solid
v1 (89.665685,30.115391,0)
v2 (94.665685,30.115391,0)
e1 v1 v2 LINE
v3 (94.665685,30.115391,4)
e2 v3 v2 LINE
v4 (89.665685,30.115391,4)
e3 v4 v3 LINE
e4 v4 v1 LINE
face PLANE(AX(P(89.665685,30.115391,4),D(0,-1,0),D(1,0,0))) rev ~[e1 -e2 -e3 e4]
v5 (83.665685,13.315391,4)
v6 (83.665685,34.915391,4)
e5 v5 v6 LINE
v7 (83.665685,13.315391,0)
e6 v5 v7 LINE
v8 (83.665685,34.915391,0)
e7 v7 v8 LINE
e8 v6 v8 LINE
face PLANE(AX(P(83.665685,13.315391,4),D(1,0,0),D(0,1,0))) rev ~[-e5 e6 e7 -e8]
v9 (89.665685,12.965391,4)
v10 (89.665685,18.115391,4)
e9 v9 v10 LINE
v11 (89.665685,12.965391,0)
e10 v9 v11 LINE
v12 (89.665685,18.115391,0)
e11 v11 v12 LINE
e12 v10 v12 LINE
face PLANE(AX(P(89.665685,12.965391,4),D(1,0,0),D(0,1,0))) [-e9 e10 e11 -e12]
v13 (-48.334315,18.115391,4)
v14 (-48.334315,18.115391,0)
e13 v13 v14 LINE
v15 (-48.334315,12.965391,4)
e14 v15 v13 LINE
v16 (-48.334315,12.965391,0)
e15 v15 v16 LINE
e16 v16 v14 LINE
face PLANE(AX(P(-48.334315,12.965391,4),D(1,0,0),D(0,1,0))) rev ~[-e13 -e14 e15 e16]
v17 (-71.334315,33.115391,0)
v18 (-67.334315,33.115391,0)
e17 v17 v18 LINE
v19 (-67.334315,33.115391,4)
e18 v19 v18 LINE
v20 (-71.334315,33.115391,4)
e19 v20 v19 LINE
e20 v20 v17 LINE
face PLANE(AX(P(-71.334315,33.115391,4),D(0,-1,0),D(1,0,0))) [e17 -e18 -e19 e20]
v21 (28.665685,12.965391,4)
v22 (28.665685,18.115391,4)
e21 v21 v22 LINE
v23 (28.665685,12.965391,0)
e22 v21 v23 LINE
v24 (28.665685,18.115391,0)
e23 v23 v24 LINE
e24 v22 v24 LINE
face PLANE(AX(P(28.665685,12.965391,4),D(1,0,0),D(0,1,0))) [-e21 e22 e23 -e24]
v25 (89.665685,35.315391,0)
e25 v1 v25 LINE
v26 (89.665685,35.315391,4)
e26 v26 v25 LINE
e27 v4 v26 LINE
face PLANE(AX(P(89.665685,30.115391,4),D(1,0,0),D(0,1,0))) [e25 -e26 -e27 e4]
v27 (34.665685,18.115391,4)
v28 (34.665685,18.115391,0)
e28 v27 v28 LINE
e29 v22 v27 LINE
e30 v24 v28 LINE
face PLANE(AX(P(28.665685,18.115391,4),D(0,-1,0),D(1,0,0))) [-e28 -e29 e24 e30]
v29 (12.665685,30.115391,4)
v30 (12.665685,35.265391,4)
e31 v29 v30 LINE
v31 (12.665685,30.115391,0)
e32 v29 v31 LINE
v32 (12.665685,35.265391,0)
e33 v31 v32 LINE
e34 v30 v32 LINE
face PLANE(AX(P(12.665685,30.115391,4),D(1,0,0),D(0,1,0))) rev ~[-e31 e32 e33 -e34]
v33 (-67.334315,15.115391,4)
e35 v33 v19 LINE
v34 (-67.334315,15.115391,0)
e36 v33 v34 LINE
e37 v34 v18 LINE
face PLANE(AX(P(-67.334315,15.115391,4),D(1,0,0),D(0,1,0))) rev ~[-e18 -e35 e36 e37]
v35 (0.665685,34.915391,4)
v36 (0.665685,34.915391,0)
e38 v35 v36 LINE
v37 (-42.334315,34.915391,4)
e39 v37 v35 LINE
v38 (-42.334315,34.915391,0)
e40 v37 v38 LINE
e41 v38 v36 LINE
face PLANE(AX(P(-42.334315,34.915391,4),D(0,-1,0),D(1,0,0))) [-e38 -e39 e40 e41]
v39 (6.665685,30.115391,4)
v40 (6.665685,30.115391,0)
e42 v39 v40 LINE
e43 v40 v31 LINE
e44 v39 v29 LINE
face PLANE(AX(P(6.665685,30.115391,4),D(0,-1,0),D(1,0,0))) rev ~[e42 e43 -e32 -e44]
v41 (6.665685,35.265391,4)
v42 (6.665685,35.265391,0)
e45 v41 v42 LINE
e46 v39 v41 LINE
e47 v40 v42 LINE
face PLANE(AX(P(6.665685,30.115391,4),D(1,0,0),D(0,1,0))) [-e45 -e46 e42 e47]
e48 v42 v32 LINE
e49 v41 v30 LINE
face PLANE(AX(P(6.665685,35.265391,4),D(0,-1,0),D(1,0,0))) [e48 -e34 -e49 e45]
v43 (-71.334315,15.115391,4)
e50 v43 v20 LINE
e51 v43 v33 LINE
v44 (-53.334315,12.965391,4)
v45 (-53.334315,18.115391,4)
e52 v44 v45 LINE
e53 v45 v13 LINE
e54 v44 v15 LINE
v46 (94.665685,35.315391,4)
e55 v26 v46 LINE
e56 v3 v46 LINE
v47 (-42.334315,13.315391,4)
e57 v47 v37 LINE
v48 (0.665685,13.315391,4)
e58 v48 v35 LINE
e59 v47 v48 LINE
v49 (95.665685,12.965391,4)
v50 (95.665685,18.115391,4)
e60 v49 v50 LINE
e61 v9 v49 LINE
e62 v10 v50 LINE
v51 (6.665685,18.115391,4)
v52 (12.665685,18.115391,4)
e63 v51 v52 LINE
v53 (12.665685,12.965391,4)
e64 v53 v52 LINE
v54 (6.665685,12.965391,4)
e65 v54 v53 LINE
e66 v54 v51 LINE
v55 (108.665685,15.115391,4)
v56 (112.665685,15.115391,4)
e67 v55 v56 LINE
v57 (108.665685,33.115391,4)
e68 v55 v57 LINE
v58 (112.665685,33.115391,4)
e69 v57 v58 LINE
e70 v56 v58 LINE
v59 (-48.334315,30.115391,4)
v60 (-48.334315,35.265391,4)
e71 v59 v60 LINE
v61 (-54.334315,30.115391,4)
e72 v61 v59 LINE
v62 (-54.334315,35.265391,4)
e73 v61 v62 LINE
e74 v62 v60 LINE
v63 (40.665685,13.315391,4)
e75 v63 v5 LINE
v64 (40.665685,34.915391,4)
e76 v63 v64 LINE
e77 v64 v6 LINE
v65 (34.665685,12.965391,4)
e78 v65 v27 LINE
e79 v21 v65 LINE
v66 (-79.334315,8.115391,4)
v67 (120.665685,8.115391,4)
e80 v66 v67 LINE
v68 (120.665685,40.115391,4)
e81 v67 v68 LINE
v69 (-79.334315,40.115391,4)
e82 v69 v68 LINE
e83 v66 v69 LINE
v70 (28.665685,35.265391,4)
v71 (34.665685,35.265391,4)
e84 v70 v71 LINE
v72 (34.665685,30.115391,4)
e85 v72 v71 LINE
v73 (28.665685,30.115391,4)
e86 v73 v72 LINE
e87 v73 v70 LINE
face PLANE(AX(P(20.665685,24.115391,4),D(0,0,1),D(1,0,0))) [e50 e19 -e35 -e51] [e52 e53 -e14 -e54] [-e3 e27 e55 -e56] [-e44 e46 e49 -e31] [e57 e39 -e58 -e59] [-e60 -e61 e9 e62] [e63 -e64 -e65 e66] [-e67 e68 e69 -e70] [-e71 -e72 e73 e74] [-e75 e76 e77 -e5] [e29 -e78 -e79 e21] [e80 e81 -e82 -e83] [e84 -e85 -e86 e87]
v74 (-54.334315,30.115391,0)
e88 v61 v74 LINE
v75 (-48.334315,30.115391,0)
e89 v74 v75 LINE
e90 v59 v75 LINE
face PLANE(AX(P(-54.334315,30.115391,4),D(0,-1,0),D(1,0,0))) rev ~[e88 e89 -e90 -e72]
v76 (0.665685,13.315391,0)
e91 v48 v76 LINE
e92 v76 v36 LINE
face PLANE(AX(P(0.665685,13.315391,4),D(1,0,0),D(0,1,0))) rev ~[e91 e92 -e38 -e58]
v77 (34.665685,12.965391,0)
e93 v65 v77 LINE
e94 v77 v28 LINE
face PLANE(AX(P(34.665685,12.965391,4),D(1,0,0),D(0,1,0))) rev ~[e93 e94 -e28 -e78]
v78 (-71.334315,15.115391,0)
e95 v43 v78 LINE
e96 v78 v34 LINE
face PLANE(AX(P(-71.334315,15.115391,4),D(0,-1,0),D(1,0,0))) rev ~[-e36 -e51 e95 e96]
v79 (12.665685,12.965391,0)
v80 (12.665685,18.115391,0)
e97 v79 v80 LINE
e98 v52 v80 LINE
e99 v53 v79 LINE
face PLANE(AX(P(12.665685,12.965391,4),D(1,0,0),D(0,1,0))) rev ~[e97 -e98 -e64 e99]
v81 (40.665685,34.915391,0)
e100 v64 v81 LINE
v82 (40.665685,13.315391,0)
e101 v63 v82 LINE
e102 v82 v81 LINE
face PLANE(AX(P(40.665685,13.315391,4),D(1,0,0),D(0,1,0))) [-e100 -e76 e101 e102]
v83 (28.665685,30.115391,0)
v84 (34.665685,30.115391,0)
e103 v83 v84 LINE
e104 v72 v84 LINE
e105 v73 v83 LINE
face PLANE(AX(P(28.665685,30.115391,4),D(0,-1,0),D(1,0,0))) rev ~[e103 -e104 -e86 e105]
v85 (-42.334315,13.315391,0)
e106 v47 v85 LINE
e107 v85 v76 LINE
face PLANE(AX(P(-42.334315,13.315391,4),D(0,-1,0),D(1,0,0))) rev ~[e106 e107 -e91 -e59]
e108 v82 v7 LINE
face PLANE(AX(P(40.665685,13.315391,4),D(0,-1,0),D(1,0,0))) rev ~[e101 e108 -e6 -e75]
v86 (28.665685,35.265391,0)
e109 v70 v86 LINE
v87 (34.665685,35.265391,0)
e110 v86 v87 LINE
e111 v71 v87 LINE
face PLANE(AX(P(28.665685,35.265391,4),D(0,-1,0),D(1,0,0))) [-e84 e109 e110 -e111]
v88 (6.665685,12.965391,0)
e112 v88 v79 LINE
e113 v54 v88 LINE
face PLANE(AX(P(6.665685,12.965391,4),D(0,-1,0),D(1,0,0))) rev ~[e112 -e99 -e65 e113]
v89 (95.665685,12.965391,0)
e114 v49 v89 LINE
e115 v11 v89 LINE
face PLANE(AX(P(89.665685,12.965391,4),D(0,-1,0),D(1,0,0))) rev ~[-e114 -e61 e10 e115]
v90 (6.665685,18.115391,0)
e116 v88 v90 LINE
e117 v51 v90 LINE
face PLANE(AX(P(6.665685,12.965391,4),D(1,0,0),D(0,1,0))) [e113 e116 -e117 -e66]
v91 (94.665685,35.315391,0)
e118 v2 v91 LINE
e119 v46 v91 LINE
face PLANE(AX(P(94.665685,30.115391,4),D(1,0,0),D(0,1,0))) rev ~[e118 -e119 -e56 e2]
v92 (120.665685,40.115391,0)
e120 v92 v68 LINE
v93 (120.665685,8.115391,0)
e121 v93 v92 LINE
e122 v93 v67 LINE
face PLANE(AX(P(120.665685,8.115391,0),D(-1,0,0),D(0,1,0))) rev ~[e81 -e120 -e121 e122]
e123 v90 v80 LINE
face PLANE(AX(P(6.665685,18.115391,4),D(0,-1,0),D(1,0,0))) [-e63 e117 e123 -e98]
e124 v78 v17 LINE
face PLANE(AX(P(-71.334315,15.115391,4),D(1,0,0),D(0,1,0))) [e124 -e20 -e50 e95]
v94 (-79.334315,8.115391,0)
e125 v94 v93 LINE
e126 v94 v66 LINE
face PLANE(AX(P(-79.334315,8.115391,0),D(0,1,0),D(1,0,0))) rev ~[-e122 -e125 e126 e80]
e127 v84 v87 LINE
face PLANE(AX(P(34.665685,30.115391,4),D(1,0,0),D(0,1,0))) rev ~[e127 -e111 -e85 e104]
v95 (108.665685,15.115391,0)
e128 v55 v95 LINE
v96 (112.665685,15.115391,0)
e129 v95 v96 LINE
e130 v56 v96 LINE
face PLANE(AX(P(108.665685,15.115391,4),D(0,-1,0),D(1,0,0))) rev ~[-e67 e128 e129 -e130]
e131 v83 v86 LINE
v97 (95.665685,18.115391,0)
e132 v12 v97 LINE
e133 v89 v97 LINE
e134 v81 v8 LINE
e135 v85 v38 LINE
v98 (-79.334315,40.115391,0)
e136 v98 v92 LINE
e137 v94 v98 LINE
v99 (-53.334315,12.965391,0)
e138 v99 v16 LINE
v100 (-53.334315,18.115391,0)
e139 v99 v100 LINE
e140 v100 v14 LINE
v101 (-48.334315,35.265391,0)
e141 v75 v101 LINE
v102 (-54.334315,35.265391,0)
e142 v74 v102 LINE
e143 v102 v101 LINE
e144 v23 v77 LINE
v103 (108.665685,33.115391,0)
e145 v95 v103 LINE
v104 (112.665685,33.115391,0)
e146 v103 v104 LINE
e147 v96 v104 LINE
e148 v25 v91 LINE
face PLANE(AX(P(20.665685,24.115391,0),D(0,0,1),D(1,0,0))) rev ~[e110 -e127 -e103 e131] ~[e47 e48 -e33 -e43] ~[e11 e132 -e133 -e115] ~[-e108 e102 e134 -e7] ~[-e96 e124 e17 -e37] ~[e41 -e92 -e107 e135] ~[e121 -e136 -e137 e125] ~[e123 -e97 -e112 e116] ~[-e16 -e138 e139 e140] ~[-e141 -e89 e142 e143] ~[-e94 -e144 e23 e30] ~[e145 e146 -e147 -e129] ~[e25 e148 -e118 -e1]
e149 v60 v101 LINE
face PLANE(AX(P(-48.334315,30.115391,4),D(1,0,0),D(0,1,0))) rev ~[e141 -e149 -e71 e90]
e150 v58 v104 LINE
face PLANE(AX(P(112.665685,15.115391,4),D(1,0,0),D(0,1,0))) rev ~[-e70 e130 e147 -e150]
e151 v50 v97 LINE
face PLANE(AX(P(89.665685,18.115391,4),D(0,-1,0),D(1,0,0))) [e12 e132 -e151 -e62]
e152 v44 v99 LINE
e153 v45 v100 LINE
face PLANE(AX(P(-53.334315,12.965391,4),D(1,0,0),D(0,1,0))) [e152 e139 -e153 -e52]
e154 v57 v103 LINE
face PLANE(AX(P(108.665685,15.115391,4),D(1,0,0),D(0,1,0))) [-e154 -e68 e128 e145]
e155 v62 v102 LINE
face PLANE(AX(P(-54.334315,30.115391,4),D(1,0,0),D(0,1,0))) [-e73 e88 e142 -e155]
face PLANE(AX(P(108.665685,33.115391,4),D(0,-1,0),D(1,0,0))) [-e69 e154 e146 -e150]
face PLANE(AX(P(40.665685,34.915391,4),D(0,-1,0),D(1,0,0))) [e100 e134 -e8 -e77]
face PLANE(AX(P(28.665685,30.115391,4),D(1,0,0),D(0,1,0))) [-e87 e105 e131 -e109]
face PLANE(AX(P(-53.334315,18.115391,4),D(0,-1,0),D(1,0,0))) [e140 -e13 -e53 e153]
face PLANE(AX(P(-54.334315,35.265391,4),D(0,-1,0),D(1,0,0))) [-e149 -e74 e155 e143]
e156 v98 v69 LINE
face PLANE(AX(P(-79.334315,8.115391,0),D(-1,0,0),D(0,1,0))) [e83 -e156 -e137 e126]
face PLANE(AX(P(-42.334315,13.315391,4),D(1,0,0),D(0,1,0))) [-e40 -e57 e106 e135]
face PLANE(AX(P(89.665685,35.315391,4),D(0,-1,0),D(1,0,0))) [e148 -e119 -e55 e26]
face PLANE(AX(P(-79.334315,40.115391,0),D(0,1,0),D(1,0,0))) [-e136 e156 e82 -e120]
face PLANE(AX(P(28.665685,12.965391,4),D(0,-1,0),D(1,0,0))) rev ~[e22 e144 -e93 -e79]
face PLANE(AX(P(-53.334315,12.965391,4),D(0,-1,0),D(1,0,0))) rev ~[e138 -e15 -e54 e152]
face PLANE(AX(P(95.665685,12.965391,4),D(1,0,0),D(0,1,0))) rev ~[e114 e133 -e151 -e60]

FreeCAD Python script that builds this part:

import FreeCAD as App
import Part
import Sketcher

V = App.Vector
Q = App.Units.Quantity


def add_polygon(sketch, points):
    """Adds a closed chain of lines whose ends are joined by coincident constraints."""
    first, n = sketch.GeometryCount, len(points)
    for a, b in zip(points, points[1:] + points[:1]):
        sketch.addGeometry(Part.LineSegment(App.Vector(*a, 0), App.Vector(*b, 0)), False)
    for i in range(n):
        sketch.addConstraint(Sketcher.Constraint("Coincident", first + i, 2, first + (i + 1) % n, 1))

doc = App.newDocument("Part")
body = doc.addObject("PartDesign::Body", "Body")

# Sketch on XY plane
sketch1 = body.newObject("Sketcher::SketchObject", "Sketch")
sketch1.AttachmentSupport = (doc.getObject("XY_Plane"), [""])
sketch1.MapMode = "FlatFace"
add_polygon(sketch1, [(-79.334315, 40.115391), (-79.334315, 8.115391), (120.665685, 8.115391), (120.665685, 40.115391)])  # lines 0-3
sketch1.addConstraint(Sketcher.Constraint("Vertical", 0))
sketch1.addConstraint(Sketcher.Constraint("Horizontal", 1))
sketch1.addConstraint(Sketcher.Constraint("Vertical", 2))
sketch1.addConstraint(Sketcher.Constraint("Horizontal", 3))
sketch1.addConstraint(Sketcher.Constraint("DistanceX", 1, 1, 1, 2, Q("200 mm")))
sketch1.addConstraint(Sketcher.Constraint("DistanceY", 0, 2, 0, 1, Q("32 mm")))
sketch1.addConstraint(Sketcher.Constraint("DistanceY", -1, 1, 0, 2, Q("8.115391 mm")))
sketch1.addConstraint(Sketcher.Constraint("DistanceX", 0, 2, -1, 1, Q("79.334315 mm")))
pad1 = body.newObject("PartDesign::Pad", "Pad")
pad1.Profile = sketch1
pad1.Length = 4

# Sketch on XY plane
sketch2 = body.newObject("Sketcher::SketchObject", "Sketch001")
sketch2.AttachmentSupport = (doc.getObject("XY_Plane"), [""])
sketch2.MapMode = "FlatFace"
sketch2.AttachmentOffset = App.Placement(V(0, 0, 4), App.Rotation())
add_polygon(sketch2, [(-42.334315, 34.915391), (-42.334315, 13.315391), (0.665685, 13.315391), (0.665685, 34.915391)])  # lines 0-3
add_polygon(sketch2, [(40.665685, 34.915391), (40.665685, 13.315391), (83.665685, 13.315391), (83.665685, 34.915391)])  # lines 4-7
add_polygon(sketch2, [(28.665685, 35.265391), (28.665685, 30.115391), (34.665685, 30.115391), (34.665685, 35.265391)])  # lines 8-11
add_polygon(sketch2, [(-54.334315, 35.265391), (-54.334315, 30.115391), (-48.334315, 30.115391), (-48.334315, 35.265391)])  # lines 12-15
add_polygon(sketch2, [(-53.334315, 18.115391), (-53.334315, 12.965391), (-48.334315, 12.965391), (-48.334315, 18.115391)])  # lines 16-19
add_polygon(sketch2, [(6.665685, 35.265391), (6.665685, 30.115391), (12.665685, 30.115391), (12.665685, 35.265391)])  # lines 20-23
add_polygon(sketch2, [(6.665685, 18.115391), (6.665685, 12.965391), (12.665685, 12.965391), (12.665685, 18.115391)])  # lines 24-27
add_polygon(sketch2, [(-71.334315, 33.115391), (-71.334315, 15.115391), (-67.334315, 15.115391), (-67.334315, 33.115391)])  # lines 28-31
add_polygon(sketch2, [(28.665685, 18.115391), (28.665685, 12.965391), (34.665685, 12.965391), (34.665685, 18.115391)])  # lines 32-35
add_polygon(sketch2, [(89.665685, 35.315391), (89.665685, 30.115391), (94.665685, 30.115391), (94.665685, 35.315391)])  # lines 36-39
add_polygon(sketch2, [(89.665685, 18.115391), (89.665685, 12.965391), (95.665685, 12.965391), (95.665685, 18.115391)])  # lines 40-43
add_polygon(sketch2, [(108.665685, 33.115391), (108.665685, 15.115391), (112.665685, 15.115391), (112.665685, 33.115391)])  # lines 44-47
sketch2.addConstraint(Sketcher.Constraint("Vertical", 0))
sketch2.addConstraint(Sketcher.Constraint("Horizontal", 1))
sketch2.addConstraint(Sketcher.Constraint("Vertical", 2))
sketch2.addConstraint(Sketcher.Constraint("Horizontal", 3))
sketch2.addConstraint(Sketcher.Constraint("Vertical", 4))
sketch2.addConstraint(Sketcher.Constraint("Horizontal", 5))
sketch2.addConstraint(Sketcher.Constraint("Vertical", 6))
sketch2.addConstraint(Sketcher.Constraint("Horizontal", 7))
sketch2.addConstraint(Sketcher.Constraint("Vertical", 8))
sketch2.addConstraint(Sketcher.Constraint("Horizontal", 9))
sketch2.addConstraint(Sketcher.Constraint("Vertical", 10))
sketch2.addConstraint(Sketcher.Constraint("Horizontal", 11))
sketch2.addConstraint(Sketcher.Constraint("Vertical", 12))
sketch2.addConstraint(Sketcher.Constraint("Horizontal", 13))
sketch2.addConstraint(Sketcher.Constraint("Vertical", 14))
sketch2.addConstraint(Sketcher.Constraint("Horizontal", 15))
sketch2.addConstraint(Sketcher.Constraint("Vertical", 16))
sketch2.addConstraint(Sketcher.Constraint("Horizontal", 17))
sketch2.addConstraint(Sketcher.Constraint("Vertical", 18))
sketch2.addConstraint(Sketcher.Constraint("Horizontal", 19))
sketch2.addConstraint(Sketcher.Constraint("Vertical", 20))
sketch2.addConstraint(Sketcher.Constraint("Horizontal", 21))
sketch2.addConstraint(Sketcher.Constraint("Vertical", 22))
sketch2.addConstraint(Sketcher.Constraint("Horizontal", 23))
sketch2.addConstraint(Sketcher.Constraint("Vertical", 24))
sketch2.addConstraint(Sketcher.Constraint("Horizontal", 25))
sketch2.addConstraint(Sketcher.Constraint("Vertical", 26))
sketch2.addConstraint(Sketcher.Constraint("Horizontal", 27))
sketch2.addConstraint(Sketcher.Constraint("Vertical", 28))
sketch2.addConstraint(Sketcher.Constraint("Horizontal", 29))
sketch2.addConstraint(Sketcher.Constraint("Vertical", 30))
sketch2.addConstraint(Sketcher.Constraint("Horizontal", 31))
sketch2.addConstraint(Sketcher.Constraint("Vertical", 32))
sketch2.addConstraint(Sketcher.Constraint("Horizontal", 33))
sketch2.addConstraint(Sketcher.Constraint("Vertical", 34))
sketch2.addConstraint(Sketcher.Constraint("Horizontal", 35))
sketch2.addConstraint(Sketcher.Constraint("Vertical", 36))
sketch2.addConstraint(Sketcher.Constraint("Horizontal", 37))
sketch2.addConstraint(Sketcher.Constraint("Vertical", 38))
sketch2.addConstraint(Sketcher.Constraint("Horizontal", 39))
sketch2.addConstraint(Sketcher.Constraint("Vertical", 40))
sketch2.addConstraint(Sketcher.Constraint("Horizontal", 41))
sketch2.addConstraint(Sketcher.Constraint("Vertical", 42))
sketch2.addConstraint(Sketcher.Constraint("Horizontal", 43))
sketch2.addConstraint(Sketcher.Constraint("Vertical", 44))
sketch2.addConstraint(Sketcher.Constraint("Horizontal", 45))
sketch2.addConstraint(Sketcher.Constraint("Vertical", 46))
sketch2.addConstraint(Sketcher.Constraint("Horizontal", 47))
sketch2.addConstraint(Sketcher.Constraint("Horizontal", 1, 2, 4, 2))
sketch2.addConstraint(Sketcher.Constraint("Horizontal", 3, 2, 6, 2))
sketch2.addConstraint(Sketcher.Constraint("Horizontal", 9, 2, 12, 2))
sketch2.addConstraint(Sketcher.Constraint("Horizontal", 11, 2, 14, 2))
sketch2.addConstraint(Sketcher.Constraint("Horizontal", 13, 2, 20, 2))
sketch2.addConstraint(Sketcher.Constraint("Horizontal", 15, 2, 22, 2))
sketch2.addConstraint(Sketcher.Constraint("Horizontal", 17, 2, 24, 2))
sketch2.addConstraint(Sketcher.Constraint("Horizontal", 19, 2, 26, 2))
sketch2.addConstraint(Sketcher.Constraint("Horizontal", 25, 2, 32, 2))
sketch2.addConstraint(Sketcher.Constraint("Horizontal", 27, 2, 34, 2))
sketch2.addConstraint(Sketcher.Constraint("Horizontal", 21, 2, 36, 2))
sketch2.addConstraint(Sketcher.Constraint("Horizontal", 33, 2, 40, 2))
sketch2.addConstraint(Sketcher.Constraint("Horizontal", 35, 2, 42, 2))
sketch2.addConstraint(Sketcher.Constraint("Horizontal", 29, 2, 44, 2))
sketch2.addConstraint(Sketcher.Constraint("Horizontal", 31, 2, 46, 2))
sketch2.addConstraint(Sketcher.Constraint("Vertical", 14, 2, 17, 2))
sketch2.addConstraint(Sketcher.Constraint("Vertical", 23, 2, 24, 2))
sketch2.addConstraint(Sketcher.Constraint("Vertical", 22, 2, 25, 2))
sketch2.addConstraint(Sketcher.Constraint("Vertical", 11, 2, 32, 2))
sketch2.addConstraint(Sketcher.Constraint("Vertical", 10, 2, 33, 2))
sketch2.addConstraint(Sketcher.Constraint("Vertical", 39, 2, 40, 2))
sketch2.addConstraint(Sketcher.Constraint("Equal", 3, 5))
sketch2.addConstraint(Sketcher.Constraint("Equal", 11, 13))
sketch2.addConstraint(Sketcher.Constraint("Equal", 15, 21))
sketch2.addConstraint(Sketcher.Constraint("Equal", 19, 37))
sketch2.addConstraint(Sketcher.Constraint("Equal", 35, 41))
sketch2.addConstraint(Sketcher.Constraint("Equal", 31, 45))
sketch2.addConstraint(Sketcher.Constraint("Equal", 14, 16))
sketch2.addConstraint(Sketcher.Constraint("DistanceX", 1, 1, 1, 2, Q("43 mm")))
sketch2.addConstraint(Sketcher.Constraint("DistanceX", 9, 1, 9, 2, Q("6 mm")))
sketch2.addConstraint(Sketcher.Constraint("DistanceX", 17, 1, 17, 2, Q("5 mm")))
sketch2.addConstraint(Sketcher.Constraint("DistanceX", 29, 1, 29, 2, Q("4 mm")))
sketch2.addConstraint(Sketcher.Constraint("DistanceY", 28, 2, 28, 1, Q("18 mm")))
sketch2.addConstraint(Sketcher.Constraint("DistanceY", 0, 2, 0, 1, Q("21.6 mm")))
sketch2.addConstraint(Sketcher.Constraint("DistanceY", 36, 2, 36, 1, Q("5.2 mm")))
sketch2.addConstraint(Sketcher.Constraint("DistanceX", 1, 2, 4, 2, Q("40 mm")))
sketch2.addConstraint(Sketcher.Constraint("DistanceX", 8, 2, 7, 2, Q("12 mm")))
sketch2.addConstraint(Sketcher.Constraint("DistanceX", 12, 2, 3, 2, Q("12 mm")))
sketch2.addConstraint(Sketcher.Constraint("DistanceY", 18, 2, 13, 2, Q("12 mm")))
sketch2.addConstraint(Sketcher.Constraint("DistanceX", 2, 2, 20, 2, Q("6 mm")))
sketch2.addConstraint(Sketcher.Constraint("DistanceX", 28, 2, 16, 2, Q("18 mm")))
sketch2.addConstraint(Sketcher.Constraint("DistanceY", 28, 2, 19, 2, Q("3 mm")))
sketch2.addConstraint(Sketcher.Constraint("DistanceX", 6, 2, 36, 2, Q("6 mm")))
sketch2.addConstraint(Sketcher.Constraint("DistanceY", 5, 2, 38, 2, Q("22 mm")))
sketch2.addConstraint(Sketcher.Constraint("DistanceX", 41, 2, 44, 2, Q("13 mm")))
sketch2.addConstraint(Sketcher.Constraint("DistanceY", 8, 2, 8, 1, Q("5.15 mm")))
sketch2.addConstraint(Sketcher.Constraint("DistanceY", -1, 1, 0, 2, Q("13.315391 mm")))
sketch2.addConstraint(Sketcher.Constraint("DistanceX", 0, 2, -1, 1, Q("42.334315 mm")))
pocket1 = body.newObject("PartDesign::Pocket", "Pocket")
pocket1.Profile = sketch2
pocket1.Length = 4

doc.recompute()
